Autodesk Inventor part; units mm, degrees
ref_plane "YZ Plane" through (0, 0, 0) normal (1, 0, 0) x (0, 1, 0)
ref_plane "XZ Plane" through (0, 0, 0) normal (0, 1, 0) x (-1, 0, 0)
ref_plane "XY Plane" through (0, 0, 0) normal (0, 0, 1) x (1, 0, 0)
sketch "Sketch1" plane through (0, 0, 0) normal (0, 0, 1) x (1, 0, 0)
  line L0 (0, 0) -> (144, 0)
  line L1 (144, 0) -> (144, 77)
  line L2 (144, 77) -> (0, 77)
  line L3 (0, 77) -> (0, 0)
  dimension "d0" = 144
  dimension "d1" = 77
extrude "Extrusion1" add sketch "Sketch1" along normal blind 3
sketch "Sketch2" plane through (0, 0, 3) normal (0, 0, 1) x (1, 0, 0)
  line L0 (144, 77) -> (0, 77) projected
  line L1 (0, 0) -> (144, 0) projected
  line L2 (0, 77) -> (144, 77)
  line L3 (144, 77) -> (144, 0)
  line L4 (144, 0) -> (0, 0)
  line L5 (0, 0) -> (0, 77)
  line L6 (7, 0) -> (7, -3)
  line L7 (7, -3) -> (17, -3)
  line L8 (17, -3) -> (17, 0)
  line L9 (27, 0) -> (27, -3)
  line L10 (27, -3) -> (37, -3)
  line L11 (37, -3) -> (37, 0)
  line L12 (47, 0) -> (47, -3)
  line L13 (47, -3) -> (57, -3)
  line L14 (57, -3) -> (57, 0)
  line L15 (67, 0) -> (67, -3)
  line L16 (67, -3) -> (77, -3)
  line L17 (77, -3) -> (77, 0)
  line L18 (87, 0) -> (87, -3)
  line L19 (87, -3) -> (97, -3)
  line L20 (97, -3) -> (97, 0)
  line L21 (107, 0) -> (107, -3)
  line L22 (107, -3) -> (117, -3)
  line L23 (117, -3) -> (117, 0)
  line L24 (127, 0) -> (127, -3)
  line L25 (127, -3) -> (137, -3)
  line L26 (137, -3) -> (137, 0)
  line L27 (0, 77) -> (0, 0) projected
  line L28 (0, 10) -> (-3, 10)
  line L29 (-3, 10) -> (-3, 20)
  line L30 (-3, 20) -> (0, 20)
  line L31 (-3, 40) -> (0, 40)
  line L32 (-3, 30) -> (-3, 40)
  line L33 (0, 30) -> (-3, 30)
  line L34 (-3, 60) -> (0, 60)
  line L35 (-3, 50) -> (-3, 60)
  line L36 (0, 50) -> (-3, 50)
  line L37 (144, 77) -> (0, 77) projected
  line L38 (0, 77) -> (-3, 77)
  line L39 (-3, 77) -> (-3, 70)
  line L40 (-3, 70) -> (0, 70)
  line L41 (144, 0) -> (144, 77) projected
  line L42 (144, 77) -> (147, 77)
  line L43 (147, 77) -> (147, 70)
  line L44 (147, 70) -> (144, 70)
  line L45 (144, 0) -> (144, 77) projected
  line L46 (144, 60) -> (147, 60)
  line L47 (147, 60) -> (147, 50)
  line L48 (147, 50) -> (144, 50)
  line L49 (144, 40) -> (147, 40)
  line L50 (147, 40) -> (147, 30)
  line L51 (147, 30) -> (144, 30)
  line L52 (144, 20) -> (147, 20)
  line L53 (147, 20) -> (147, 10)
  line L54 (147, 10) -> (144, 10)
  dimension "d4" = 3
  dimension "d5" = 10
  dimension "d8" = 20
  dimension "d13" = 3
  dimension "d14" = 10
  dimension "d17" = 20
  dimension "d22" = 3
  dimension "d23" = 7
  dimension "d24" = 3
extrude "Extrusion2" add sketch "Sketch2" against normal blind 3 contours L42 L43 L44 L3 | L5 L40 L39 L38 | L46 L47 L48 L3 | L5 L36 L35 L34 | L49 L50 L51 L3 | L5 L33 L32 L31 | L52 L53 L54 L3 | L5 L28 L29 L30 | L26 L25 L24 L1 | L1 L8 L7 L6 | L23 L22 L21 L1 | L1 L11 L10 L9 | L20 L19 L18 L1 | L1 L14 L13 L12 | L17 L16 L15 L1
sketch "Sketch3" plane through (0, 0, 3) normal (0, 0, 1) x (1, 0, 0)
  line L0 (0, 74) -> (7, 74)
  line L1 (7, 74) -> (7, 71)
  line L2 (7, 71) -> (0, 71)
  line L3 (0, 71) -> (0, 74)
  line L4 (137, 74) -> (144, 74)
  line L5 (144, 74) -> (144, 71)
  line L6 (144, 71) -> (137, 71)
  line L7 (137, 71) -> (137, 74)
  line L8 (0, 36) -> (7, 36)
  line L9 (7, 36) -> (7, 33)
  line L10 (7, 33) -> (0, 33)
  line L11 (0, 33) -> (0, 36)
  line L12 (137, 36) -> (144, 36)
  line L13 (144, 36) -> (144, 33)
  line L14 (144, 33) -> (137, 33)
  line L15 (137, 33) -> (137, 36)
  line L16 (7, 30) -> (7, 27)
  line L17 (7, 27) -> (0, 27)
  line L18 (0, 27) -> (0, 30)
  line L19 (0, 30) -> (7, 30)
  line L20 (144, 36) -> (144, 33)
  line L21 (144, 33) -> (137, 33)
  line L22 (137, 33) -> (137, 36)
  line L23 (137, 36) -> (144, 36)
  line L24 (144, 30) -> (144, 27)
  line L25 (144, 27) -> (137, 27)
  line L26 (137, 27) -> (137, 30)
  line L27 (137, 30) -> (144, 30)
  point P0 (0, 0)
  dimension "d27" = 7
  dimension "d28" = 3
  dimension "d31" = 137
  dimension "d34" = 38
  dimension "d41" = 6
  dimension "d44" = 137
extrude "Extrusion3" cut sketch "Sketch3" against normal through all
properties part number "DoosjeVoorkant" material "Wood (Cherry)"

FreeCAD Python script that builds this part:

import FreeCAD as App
import Part
import Sketcher
from FreeCAD import Vector


def add_polygon(sketch, points):
    """Adds a closed chain of lines whose ends are joined by coincident constraints."""
    first, n = sketch.GeometryCount, len(points)
    for a, b in zip(points, points[1:] + points[:1]):
        sketch.addGeometry(Part.LineSegment(App.Vector(*a, 0), App.Vector(*b, 0)), False)
    for i in range(n):
        sketch.addConstraint(Sketcher.Constraint("Coincident", first + i, 2, first + (i + 1) % n, 1))

doc = App.newDocument("Part")
params = doc.addObject("Spreadsheet::Sheet", "Params")
for row, (alias, value) in enumerate([
    ("sketch1_width", "144 mm"),
    ("sketch1_height", "77 mm"),
    ("pad1_length", "3 mm"),
    ("sketch2_width", "3 mm"),
    ("sketch2_width2", "10 mm"),
    ("sketch2_height", "7 mm"),
    ("pad2_length", "3 mm"),
    ("sketch3_width", "7 mm"),
    ("sketch3_height", "3 mm"),
], start=1):
    params.set(f"A{row}", alias)
    params.set(f"B{row}", "=" + value)
    params.setAlias(f"B{row}", alias)

body = doc.addObject("PartDesign::Body", "Body")

# Sketch on XY plane
sketch1 = body.newObject("Sketcher::SketchObject", "Sketch")
sketch1.AttachmentSupport = (doc.getObject("XY_Plane"), [""])
sketch1.MapMode = "FlatFace"
add_polygon(sketch1, [(0, 77), (0, 0), (144, 0), (144, 77)])  # lines 0-3
sketch1.addConstraint([
    Sketcher.Constraint("Vertical", 0),
    Sketcher.Constraint("Horizontal", 1),
    Sketcher.Constraint("Vertical", 2),
    Sketcher.Constraint("Horizontal", 3),
    Sketcher.Constraint("Coincident", 0, 2, -1, 1),
    Sketcher.Constraint("DistanceX", 1, 1, 1, 2, 144.0),
    Sketcher.Constraint("DistanceY", 0, 2, 0, 1, 77.0),
])
sketch1.setExpression("Constraints[9]", "Params.sketch1_width")
sketch1.setExpression("Constraints[10]", "Params.sketch1_height")
pad1 = body.newObject("PartDesign::Pad", "Pad")
pad1.Profile = sketch1
pad1.setExpression("Length", "Params.pad1_length")

# Sketch on XY plane
sketch2 = body.newObject("Sketcher::SketchObject", "Sketch001")
sketch2.AttachmentSupport = (doc.getObject("XY_Plane"), [""])
sketch2.MapMode = "FlatFace"
sketch2.AttachmentOffset = App.Placement(Vector(0, 0, 3), App.Rotation())
add_polygon(sketch2, [(147, 77), (144, 77), (144, 70), (147, 70)])  # lines 0-3
add_polygon(sketch2, [(0, 70), (0, 77), (-3, 77), (-3, 70)])  # lines 4-7
add_polygon(sketch2, [(147, 60), (144, 60), (144, 50), (147, 50)])  # lines 8-11
add_polygon(sketch2, [(0, 50), (0, 60), (-3, 60), (-3, 50)])  # lines 12-15
add_polygon(sketch2, [(147, 40), (144, 40), (144, 30), (147, 30)])  # lines 16-19
add_polygon(sketch2, [(0, 30), (0, 40), (-3, 40), (-3, 30)])  # lines 20-23
add_polygon(sketch2, [(147, 20), (144, 20), (144, 10), (147, 10)])  # lines 24-27
add_polygon(sketch2, [(0, 10), (0, 20), (-3, 20), (-3, 10)])  # lines 28-31
add_polygon(sketch2, [(137, -3), (137, 0), (127, 0), (127, -3)])  # lines 32-35
add_polygon(sketch2, [(17, 0), (7, 0), (7, -3), (17, -3)])  # lines 36-39
add_polygon(sketch2, [(117, -3), (117, 0), (107, 0), (107, -3)])  # lines 40-43
add_polygon(sketch2, [(37, 0), (27, 0), (27, -3), (37, -3)])  # lines 44-47
add_polygon(sketch2, [(97, -3), (97, 0), (87, 0), (87, -3)])  # lines 48-51
add_polygon(sketch2, [(57, 0), (47, 0), (47, -3), (57, -3)])  # lines 52-55
add_polygon(sketch2, [(77, -3), (77, 0), (67, 0), (67, -3)])  # lines 56-59
sketch2.addConstraint([
    Sketcher.Constraint("Horizontal", 0),
    Sketcher.Constraint("Vertical", 1),
    Sketcher.Constraint("Horizontal", 2),
    Sketcher.Constraint("Vertical", 3),
    Sketcher.Constraint("Vertical", 4),
    Sketcher.Constraint("Horizontal", 5),
    Sketcher.Constraint("Vertical", 6),
    Sketcher.Constraint("Horizontal", 7),
    Sketcher.Constraint("Horizontal", 8),
    Sketcher.Constraint("Vertical", 9),
    Sketcher.Constraint("Horizontal", 10),
    Sketcher.Constraint("Vertical", 11),
    Sketcher.Constraint("Vertical", 12),
    Sketcher.Constraint("Horizontal", 13),
    Sketcher.Constraint("Vertical", 14),
    Sketcher.Constraint("Horizontal", 15),
    Sketcher.Constraint("Horizontal", 16),
    Sketcher.Constraint("Vertical", 17),
    Sketcher.Constraint("Horizontal", 18),
    Sketcher.Constraint("Vertical", 19),
    Sketcher.Constraint("Vertical", 20),
    Sketcher.Constraint("Horizontal", 21),
    Sketcher.Constraint("Vertical", 22),
    Sketcher.Constraint("Horizontal", 23),
    Sketcher.Constraint("Horizontal", 24),
    Sketcher.Constraint("Vertical", 25),
    Sketcher.Constraint("Horizontal", 26),
    Sketcher.Constraint("Vertical", 27),
    Sketcher.Constraint("Vertical", 28),
    Sketcher.Constraint("Horizontal", 29),
    Sketcher.Constraint("Vertical", 30),
    Sketcher.Constraint("Horizontal", 31),
    Sketcher.Constraint("Vertical", 32),
    Sketcher.Constraint("Horizontal", 33),
    Sketcher.Constraint("Vertical", 34),
    Sketcher.Constraint("Horizontal", 35),
    Sketcher.Constraint("Horizontal", 36),
    Sketcher.Constraint("Vertical", 37),
    Sketcher.Constraint("Horizontal", 38),
    Sketcher.Constraint("Vertical", 39),
    Sketcher.Constraint("Vertical", 40),
    Sketcher.Constraint("Horizontal", 41),
    Sketcher.Constraint("Vertical", 42),
    Sketcher.Constraint("Horizontal", 43),
    Sketcher.Constraint("Horizontal", 44),
    Sketcher.Constraint("Vertical", 45),
    Sketcher.Constraint("Horizontal", 46),
    Sketcher.Constraint("Vertical", 47),
    Sketcher.Constraint("Vertical", 48),
    Sketcher.Constraint("Horizontal", 49),
    Sketcher.Constraint("Vertical", 50),
    Sketcher.Constraint("Horizontal", 51),
    Sketcher.Constraint("Horizontal", 52),
    Sketcher.Constraint("Vertical", 53),
    Sketcher.Constraint("Horizontal", 54),
    Sketcher.Constraint("Vertical", 55),
    Sketcher.Constraint("Vertical", 56),
    Sketcher.Constraint("Horizontal", 57),
    Sketcher.Constraint("Vertical", 58),
    Sketcher.Constraint("Horizontal", 59),
    Sketcher.Constraint("PointOnObject", 4, 2, -2),
    Sketcher.Constraint("PointOnObject", 12, 2, -2),
    Sketcher.Constraint("PointOnObject", 20, 2, -2),
    Sketcher.Constraint("PointOnObject", 28, 2, -2),
    Sketcher.Constraint("PointOnObject", 32, 2, -1),
    Sketcher.Constraint("PointOnObject", 36, 2, -1),
    Sketcher.Constraint("PointOnObject", 40, 2, -1),
    Sketcher.Constraint("PointOnObject", 44, 2, -1),
    Sketcher.Constraint("PointOnObject", 48, 2, -1),
    Sketcher.Constraint("PointOnObject", 52, 2, -1),
    Sketcher.Constraint("PointOnObject", 56, 2, -1),
    Sketcher.Constraint("Horizontal", 3, 2, 4, 2),
    Sketcher.Constraint("Horizontal", 2, 2, 6, 2),
    Sketcher.Constraint("Horizontal", 11, 2, 12, 2),
    Sketcher.Constraint("Horizontal", 10, 2, 14, 2),
    Sketcher.Constraint("Horizontal", 19, 2, 20, 2),
    Sketcher.Constraint("Horizontal", 18, 2, 22, 2),
    Sketcher.Constraint("Horizontal", 27, 2, 28, 2),
    Sketcher.Constraint("Horizontal", 26, 2, 30, 2),
    Sketcher.Constraint("Horizontal", 35, 2, 37, 2),
    Sketcher.Constraint("Horizontal", 38, 2, 42, 2),
    Sketcher.Constraint("Horizontal", 43, 2, 45, 2),
    Sketcher.Constraint("Horizontal", 46, 2, 50, 2),
    Sketcher.Constraint("Horizontal", 51, 2, 53, 2),
    Sketcher.Constraint("Horizontal", 54, 2, 58, 2),
    Sketcher.Constraint("Vertical", 1, 2, 8, 2),
    Sketcher.Constraint("Vertical", 3, 2, 10, 2),
    Sketcher.Constraint("Vertical", 6, 2, 13, 2),
    Sketcher.Constraint("Vertical", 9, 2, 16, 2),
    Sketcher.Constraint("Vertical", 11, 2, 18, 2),
    Sketcher.Constraint("Vertical", 14, 2, 21, 2),
    Sketcher.Constraint("Vertical", 17, 2, 24, 2),
    Sketcher.Constraint("Vertical", 19, 2, 26, 2),
    Sketcher.Constraint("Vertical", 22, 2, 29, 2),
    Sketcher.Constraint("Equal", 2, 5),
    Sketcher.Constraint("Equal", 35, 36),
    Sketcher.Constraint("Equal", 38, 41),
    Sketcher.Constraint("Equal", 43, 44),
    Sketcher.Constraint("Equal", 46, 49),
    Sketcher.Constraint("Equal", 51, 52),
    Sketcher.Constraint("Equal", 54, 57),
    Sketcher.Constraint("Equal", 59, 9),
    Sketcher.Constraint("Equal", 14, 17),
    Sketcher.Constraint("Equal", 22, 25),
    Sketcher.Constraint("Equal", 31, 32),
    Sketcher.Constraint("DistanceX", 0, 2, 0, 1, 3.0),
    Sketcher.Constraint("DistanceX", 33, 2, 33, 1, 10.0),
    Sketcher.Constraint("DistanceY", 1, 2, 1, 1, 7.0),
    Sketcher.Constraint("DistanceY", -1, 1, 24, 2, 20.0),
    Sketcher.Constraint("DistanceX", -1, 1, 36, 2, 7.0),
    Sketcher.Constraint("DistanceY", 8, 2, 1, 2, 10.0),
    Sketcher.Constraint("DistanceY", 16, 2, 9, 2, 10.0),
    Sketcher.Constraint("DistanceY", 24, 2, 17, 2, 10.0),
    Sketcher.Constraint("DistanceX", 32, 2, 25, 2, 7.0),
    Sketcher.Constraint("DistanceX", 40, 2, 33, 2, 10.0),
    Sketcher.Constraint("DistanceX", 39, 2, 44, 2, 10.0),
    Sketcher.Constraint("DistanceX", 48, 2, 41, 2, 10.0),
    Sketcher.Constraint("DistanceX", 47, 2, 52, 2, 10.0),
    Sketcher.Constraint("DistanceX", 56, 2, 49, 2, 10.0),
    Sketcher.Constraint("DistanceX", 55, 2, 56, 2, 20.0),
])
sketch2.setExpression("Constraints[165]", "Params.sketch2_width")
sketch2.setExpression("Constraints[166]", "Params.sketch2_width2")
sketch2.setExpression("Constraints[167]", "Params.sketch2_height")
pad2 = body.newObject("PartDesign::Pad", "Pad001")
pad2.Profile = sketch2
pad2.setExpression("Length", "Params.pad2_length")
pad2.Reversed = True

# Sketch on XY plane
sketch3 = body.newObject("Sketcher::SketchObject", "Sketch002")
sketch3.AttachmentSupport = (doc.getObject("XY_Plane"), [""])
sketch3.MapMode = "FlatFace"
sketch3.AttachmentOffset = App.Placement(Vector(0, 0, 3), App.Rotation())
add_polygon(sketch3, [(7, 74), (0, 74), (0, 71), (7, 71)])  # lines 0-3
add_polygon(sketch3, [(144, 74), (137, 74), (137, 71), (144, 71)])  # lines 4-7
add_polygon(sketch3, [(7, 36), (0, 36), (0, 33), (7, 33)])  # lines 8-11
add_polygon(sketch3, [(144, 36), (137, 36), (137, 33), (144, 33)])  # lines 12-15
add_polygon(sketch3, [(7, 27), (7, 30), (0, 30), (0, 27)])  # lines 16-19
add_polygon(sketch3, [(144, 27), (144, 30), (137, 30), (137, 27)])  # lines 20-23
sketch3.addConstraint([
    Sketcher.Constraint("Horizontal", 0),
    Sketcher.Constraint("Vertical", 1),
    Sketcher.Constraint("Horizontal", 2),
    Sketcher.Constraint("Vertical", 3),
    Sketcher.Constraint("Horizontal", 4),
    Sketcher.Constraint("Vertical", 5),
    Sketcher.Constraint("Horizontal", 6),
    Sketcher.Constraint("Vertical", 7),
    Sketcher.Constraint("Horizontal", 8),
    Sketcher.Constraint("Vertical", 9),
    Sketcher.Constraint("Horizontal", 10),
    Sketcher.Constraint("Vertical", 11),
    Sketcher.Constraint("Horizontal", 12),
    Sketcher.Constraint("Vertical", 13),
    Sketcher.Constraint("Horizontal", 14),
    Sketcher.Constraint("Vertical", 15),
    Sketcher.Constraint("Vertical", 16),
    Sketcher.Constraint("Horizontal", 17),
    Sketcher.Constraint("Vertical", 18),
    Sketcher.Constraint("Horizontal", 19),
    Sketcher.Constraint("Vertical", 20),
    Sketcher.Constraint("Horizontal", 21),
    Sketcher.Constraint("Vertical", 22),
    Sketcher.Constraint("Horizontal", 23),
    Sketcher.Constraint("PointOnObject", 0, 2, -2),
    Sketcher.Constraint("PointOnObject", 8, 2, -2),
    Sketcher.Constraint("PointOnObject", 17, 2, -2),
    Sketcher.Constraint("Horizontal", 3, 2, 4, 2),
    Sketcher.Constraint("Horizontal", 2, 2, 5, 2),
    Sketcher.Constraint("Horizontal", 11, 2, 12, 2),
    Sketcher.Constraint("Horizontal", 10, 2, 13, 2),
    Sketcher.Constraint("Horizontal", 17, 2, 20, 2),
    Sketcher.Constraint("Horizontal", 19, 2, 22, 2),
    Sketcher.Constraint("Vertical", 3, 2, 10, 2),
    Sketcher.Constraint("Vertical", 5, 2, 12, 2),
    Sketcher.Constraint("Vertical", 7, 2, 14, 2),
    Sketcher.Constraint("Vertical", 11, 2, 16, 2),
    Sketcher.Constraint("Vertical", 15, 2, 20, 2),
    Sketcher.Constraint("Vertical", 13, 2, 21, 2),
    Sketcher.Constraint("Equal", 2, 4),
    Sketcher.Constraint("Equal", 7, 9),
    Sketcher.Constraint("Equal", 15, 16),
    Sketcher.Constraint("DistanceX", 0, 2, 0, 1, 7.0),
    Sketcher.Constraint("DistanceY", 1, 2, 1, 1, 3.0),
    Sketcher.Constraint("DistanceX", -1, 1, 4, 2, 137.0),
    Sketcher.Constraint("DistanceY", 8, 2, 0, 2, 38.0),
    Sketcher.Constraint("DistanceY", 16, 2, 10, 2, 3.0),
    Sketcher.Constraint("DistanceY", -1, 1, 0, 2, 74.0),
])
sketch3.setExpression("Constraints[66]", "Params.sketch3_width")
sketch3.setExpression("Constraints[67]", "Params.sketch3_height")
pocket1 = body.newObject("PartDesign::Pocket", "Pocket")
pocket1.Profile = sketch3
pocket1.Type = "ThroughAll"

doc.recompute()
